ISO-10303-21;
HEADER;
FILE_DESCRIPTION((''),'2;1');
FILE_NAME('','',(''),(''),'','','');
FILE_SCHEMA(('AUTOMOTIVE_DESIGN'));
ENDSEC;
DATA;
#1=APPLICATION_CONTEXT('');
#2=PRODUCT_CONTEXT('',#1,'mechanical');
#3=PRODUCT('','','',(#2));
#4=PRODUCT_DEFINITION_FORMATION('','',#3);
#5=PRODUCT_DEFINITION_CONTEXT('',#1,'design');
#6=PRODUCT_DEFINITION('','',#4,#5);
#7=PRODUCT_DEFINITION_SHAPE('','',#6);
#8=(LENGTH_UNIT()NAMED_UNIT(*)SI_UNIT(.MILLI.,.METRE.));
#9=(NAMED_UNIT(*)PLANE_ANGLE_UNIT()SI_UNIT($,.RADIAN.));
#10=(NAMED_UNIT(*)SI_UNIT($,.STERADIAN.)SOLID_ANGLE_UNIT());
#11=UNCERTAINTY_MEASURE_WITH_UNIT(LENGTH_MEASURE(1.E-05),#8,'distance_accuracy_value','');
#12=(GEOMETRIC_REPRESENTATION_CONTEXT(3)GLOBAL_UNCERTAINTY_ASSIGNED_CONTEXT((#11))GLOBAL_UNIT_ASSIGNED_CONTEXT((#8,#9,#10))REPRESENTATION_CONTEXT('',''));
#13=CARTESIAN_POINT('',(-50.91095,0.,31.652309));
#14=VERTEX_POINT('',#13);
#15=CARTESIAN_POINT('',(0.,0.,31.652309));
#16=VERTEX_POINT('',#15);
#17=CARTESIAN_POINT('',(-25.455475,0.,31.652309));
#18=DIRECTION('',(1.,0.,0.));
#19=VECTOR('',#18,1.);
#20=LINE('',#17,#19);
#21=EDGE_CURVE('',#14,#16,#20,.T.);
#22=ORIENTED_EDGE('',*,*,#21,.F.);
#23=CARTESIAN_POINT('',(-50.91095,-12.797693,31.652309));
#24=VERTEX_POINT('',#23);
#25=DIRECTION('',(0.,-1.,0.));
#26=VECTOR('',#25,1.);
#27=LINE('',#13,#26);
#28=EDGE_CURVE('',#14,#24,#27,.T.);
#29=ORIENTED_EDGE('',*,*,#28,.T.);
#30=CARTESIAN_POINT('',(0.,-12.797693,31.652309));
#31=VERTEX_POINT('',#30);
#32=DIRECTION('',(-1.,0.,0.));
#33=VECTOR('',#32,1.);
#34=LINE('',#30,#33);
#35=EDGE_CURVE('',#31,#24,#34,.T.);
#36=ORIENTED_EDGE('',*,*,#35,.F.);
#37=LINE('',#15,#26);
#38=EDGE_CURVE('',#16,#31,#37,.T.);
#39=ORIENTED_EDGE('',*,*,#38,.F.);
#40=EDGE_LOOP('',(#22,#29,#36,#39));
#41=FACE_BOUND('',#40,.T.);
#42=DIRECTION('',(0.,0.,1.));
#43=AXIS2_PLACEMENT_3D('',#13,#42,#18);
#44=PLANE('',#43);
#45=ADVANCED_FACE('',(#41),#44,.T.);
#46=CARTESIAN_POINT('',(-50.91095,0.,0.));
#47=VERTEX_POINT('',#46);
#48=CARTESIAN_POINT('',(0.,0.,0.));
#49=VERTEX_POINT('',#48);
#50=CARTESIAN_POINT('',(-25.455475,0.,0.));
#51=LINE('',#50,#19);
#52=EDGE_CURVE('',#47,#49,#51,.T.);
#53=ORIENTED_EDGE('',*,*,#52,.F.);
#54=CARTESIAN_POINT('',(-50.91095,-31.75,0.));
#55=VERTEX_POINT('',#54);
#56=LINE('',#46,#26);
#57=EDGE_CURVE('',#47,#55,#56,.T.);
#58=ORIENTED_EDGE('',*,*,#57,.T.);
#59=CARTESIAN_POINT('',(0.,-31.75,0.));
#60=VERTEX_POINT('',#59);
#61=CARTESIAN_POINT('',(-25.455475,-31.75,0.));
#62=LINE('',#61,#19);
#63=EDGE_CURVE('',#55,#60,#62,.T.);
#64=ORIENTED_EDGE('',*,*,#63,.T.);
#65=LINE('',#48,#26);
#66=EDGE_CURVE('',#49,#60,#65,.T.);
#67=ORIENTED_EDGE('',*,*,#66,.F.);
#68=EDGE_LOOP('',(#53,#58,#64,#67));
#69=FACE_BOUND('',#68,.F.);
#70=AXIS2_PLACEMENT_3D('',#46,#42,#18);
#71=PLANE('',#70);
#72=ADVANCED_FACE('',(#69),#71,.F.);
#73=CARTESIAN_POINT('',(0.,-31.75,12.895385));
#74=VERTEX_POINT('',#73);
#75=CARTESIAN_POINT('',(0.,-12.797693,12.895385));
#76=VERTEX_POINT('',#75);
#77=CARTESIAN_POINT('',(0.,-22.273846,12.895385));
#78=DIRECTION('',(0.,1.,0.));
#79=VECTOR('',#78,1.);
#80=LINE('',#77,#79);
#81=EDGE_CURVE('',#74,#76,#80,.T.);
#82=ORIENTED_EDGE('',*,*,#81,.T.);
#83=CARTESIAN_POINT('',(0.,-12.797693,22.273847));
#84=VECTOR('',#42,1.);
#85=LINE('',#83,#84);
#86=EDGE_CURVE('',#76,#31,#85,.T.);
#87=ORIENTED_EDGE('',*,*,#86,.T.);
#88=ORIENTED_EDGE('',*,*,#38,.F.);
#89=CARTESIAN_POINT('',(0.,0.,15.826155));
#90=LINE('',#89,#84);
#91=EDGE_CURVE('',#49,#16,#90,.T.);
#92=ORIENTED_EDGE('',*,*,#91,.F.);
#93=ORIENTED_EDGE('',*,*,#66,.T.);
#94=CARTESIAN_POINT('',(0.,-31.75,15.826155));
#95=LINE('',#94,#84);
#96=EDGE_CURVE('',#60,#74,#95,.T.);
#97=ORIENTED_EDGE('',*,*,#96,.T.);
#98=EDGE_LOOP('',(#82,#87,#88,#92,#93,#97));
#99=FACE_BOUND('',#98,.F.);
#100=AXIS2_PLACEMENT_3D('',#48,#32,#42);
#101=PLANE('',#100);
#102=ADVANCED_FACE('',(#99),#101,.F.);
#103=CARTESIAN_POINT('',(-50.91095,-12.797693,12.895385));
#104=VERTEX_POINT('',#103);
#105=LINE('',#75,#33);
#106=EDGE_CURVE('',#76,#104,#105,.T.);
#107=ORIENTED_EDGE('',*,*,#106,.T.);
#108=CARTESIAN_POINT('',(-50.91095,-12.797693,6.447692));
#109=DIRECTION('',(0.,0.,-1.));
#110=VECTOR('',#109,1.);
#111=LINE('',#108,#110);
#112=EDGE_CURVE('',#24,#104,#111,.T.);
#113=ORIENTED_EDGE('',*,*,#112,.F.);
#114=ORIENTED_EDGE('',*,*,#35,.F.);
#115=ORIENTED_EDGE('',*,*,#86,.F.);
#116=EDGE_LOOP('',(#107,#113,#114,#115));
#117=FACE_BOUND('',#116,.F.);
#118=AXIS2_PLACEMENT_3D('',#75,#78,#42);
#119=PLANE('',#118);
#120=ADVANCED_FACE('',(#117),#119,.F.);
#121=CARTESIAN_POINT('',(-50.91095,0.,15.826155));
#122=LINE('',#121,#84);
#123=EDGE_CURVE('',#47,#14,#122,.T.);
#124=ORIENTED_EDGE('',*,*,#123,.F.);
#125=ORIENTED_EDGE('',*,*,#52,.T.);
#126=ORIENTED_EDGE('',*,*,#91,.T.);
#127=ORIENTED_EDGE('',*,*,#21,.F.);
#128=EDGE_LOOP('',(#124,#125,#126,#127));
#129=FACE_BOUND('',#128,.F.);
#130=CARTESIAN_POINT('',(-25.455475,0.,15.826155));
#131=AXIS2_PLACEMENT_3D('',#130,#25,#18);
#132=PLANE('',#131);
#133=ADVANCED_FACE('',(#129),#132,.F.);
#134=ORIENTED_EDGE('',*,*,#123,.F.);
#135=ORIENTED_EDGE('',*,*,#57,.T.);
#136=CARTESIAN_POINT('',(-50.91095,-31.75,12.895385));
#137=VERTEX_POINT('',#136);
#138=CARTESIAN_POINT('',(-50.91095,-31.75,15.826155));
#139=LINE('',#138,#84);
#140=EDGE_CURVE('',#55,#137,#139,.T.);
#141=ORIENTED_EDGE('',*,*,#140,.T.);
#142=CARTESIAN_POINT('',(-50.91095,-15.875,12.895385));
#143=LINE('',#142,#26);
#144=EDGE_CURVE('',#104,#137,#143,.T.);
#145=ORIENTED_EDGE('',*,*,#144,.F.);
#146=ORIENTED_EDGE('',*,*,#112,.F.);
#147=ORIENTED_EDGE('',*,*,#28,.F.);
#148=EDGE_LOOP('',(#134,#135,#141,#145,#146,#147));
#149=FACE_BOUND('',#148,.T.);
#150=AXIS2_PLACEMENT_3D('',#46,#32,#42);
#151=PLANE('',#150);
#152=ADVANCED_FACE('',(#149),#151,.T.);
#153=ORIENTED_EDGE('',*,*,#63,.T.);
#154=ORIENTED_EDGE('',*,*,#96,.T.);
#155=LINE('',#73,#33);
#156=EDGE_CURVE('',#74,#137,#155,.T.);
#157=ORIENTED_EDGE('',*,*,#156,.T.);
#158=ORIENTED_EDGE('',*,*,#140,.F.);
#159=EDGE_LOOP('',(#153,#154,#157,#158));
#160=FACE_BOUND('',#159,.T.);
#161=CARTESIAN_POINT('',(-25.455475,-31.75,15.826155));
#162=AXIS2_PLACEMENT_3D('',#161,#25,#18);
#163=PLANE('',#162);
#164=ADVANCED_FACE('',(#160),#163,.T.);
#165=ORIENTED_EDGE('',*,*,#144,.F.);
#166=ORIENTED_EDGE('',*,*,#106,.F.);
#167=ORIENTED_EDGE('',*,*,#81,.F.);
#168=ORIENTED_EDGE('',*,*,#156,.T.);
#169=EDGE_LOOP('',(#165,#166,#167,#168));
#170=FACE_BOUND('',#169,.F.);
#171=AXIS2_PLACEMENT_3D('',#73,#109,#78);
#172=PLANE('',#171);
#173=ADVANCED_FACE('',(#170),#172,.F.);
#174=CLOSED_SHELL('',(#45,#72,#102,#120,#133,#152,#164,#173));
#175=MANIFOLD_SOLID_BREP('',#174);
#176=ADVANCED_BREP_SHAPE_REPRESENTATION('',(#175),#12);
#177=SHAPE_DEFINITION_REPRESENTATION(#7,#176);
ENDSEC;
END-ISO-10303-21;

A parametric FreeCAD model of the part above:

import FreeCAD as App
import Part
import Sketcher
Q = App.Units.Quantity


def add_polygon(sketch, points):
    """Adds a closed chain of lines whose ends are joined by coincident constraints."""
    first, n = sketch.GeometryCount, len(points)
    for a, b in zip(points, points[1:] + points[:1]):
        sketch.addGeometry(Part.LineSegment(App.Vector(*a, 0), App.Vector(*b, 0)), False)
    for i in range(n):
        sketch.addConstraint(Sketcher.Constraint("Coincident", first + i, 2, first + (i + 1) % n, 1))

doc = App.newDocument("Part")
params = doc.addObject("Spreadsheet::Sheet", "Params")
for row, (alias, value) in enumerate([
    ("pad1_length", "1.25 in"),
], start=1):
    params.set(f"A{row}", alias)
    params.set(f"B{row}", "=" + value)
    params.setAlias(f"B{row}", alias)

body = doc.addObject("PartDesign::Body", "Body")

sketch1 = doc.addObject("Sketcher::SketchObject", "Sketch")
body.addObject(sketch1)
sketch1.AttachmentSupport = (doc.XZ_Plane, [""])
sketch1.MapMode = "FlatFace"
add_polygon(sketch1, [(-51, 32), (-51, 0), (0, 0), (0, 32)])
sketch1.addConstraint([
    Sketcher.Constraint("Vertical", 0),
    Sketcher.Constraint("Horizontal", 1),
    Sketcher.Constraint("Vertical", 2),
    Sketcher.Constraint("Horizontal", 3),
    Sketcher.Constraint("Coincident", 1, 2, -1, 1),
    Sketcher.Constraint("DistanceX", 1, 1, 1, 2, 50.91095),
    Sketcher.Constraint("DistanceY", 0, 2, 0, 1, 31.652309),
])
pad1 = doc.addObject("PartDesign::Pad", "Pad")
body.addObject(pad1)
pad1.Profile = sketch1
pad1.setExpression("Length", "Params.pad1_length")

sketch2 = doc.addObject("Sketcher::SketchObject", "Sketch001")
body.addObject(sketch2)
sketch2.AttachmentSupport = (doc.YZ_Plane, [""])
sketch2.MapMode = "FlatFace"
add_polygon(sketch2, [(-32, 32), (-32, 13), (-13, 13), (-13, 32)])
sketch2.addConstraint([
    Sketcher.Constraint("Vertical", 0),
    Sketcher.Constraint("Horizontal", 1),
    Sketcher.Constraint("Vertical", 2),
    Sketcher.Constraint("Horizontal", 3),
    Sketcher.Constraint("DistanceX", 0, 2, -1, 1, Q("1.25 in")),
    Sketcher.Constraint("DistanceX", 1, 1, 1, 2, 18.952307),
    Sketcher.Constraint("DistanceY", 0, 2, 0, 1, 18.756924),
    Sketcher.Constraint("DistanceY", -1, 1, 2, 2, 31.652309),
])
pocket1 = doc.addObject("PartDesign::Pocket", "Pocket")
body.addObject(pocket1)
pocket1.Profile = sketch2
pocket1.Type = "ThroughAll"

doc.recompute()
